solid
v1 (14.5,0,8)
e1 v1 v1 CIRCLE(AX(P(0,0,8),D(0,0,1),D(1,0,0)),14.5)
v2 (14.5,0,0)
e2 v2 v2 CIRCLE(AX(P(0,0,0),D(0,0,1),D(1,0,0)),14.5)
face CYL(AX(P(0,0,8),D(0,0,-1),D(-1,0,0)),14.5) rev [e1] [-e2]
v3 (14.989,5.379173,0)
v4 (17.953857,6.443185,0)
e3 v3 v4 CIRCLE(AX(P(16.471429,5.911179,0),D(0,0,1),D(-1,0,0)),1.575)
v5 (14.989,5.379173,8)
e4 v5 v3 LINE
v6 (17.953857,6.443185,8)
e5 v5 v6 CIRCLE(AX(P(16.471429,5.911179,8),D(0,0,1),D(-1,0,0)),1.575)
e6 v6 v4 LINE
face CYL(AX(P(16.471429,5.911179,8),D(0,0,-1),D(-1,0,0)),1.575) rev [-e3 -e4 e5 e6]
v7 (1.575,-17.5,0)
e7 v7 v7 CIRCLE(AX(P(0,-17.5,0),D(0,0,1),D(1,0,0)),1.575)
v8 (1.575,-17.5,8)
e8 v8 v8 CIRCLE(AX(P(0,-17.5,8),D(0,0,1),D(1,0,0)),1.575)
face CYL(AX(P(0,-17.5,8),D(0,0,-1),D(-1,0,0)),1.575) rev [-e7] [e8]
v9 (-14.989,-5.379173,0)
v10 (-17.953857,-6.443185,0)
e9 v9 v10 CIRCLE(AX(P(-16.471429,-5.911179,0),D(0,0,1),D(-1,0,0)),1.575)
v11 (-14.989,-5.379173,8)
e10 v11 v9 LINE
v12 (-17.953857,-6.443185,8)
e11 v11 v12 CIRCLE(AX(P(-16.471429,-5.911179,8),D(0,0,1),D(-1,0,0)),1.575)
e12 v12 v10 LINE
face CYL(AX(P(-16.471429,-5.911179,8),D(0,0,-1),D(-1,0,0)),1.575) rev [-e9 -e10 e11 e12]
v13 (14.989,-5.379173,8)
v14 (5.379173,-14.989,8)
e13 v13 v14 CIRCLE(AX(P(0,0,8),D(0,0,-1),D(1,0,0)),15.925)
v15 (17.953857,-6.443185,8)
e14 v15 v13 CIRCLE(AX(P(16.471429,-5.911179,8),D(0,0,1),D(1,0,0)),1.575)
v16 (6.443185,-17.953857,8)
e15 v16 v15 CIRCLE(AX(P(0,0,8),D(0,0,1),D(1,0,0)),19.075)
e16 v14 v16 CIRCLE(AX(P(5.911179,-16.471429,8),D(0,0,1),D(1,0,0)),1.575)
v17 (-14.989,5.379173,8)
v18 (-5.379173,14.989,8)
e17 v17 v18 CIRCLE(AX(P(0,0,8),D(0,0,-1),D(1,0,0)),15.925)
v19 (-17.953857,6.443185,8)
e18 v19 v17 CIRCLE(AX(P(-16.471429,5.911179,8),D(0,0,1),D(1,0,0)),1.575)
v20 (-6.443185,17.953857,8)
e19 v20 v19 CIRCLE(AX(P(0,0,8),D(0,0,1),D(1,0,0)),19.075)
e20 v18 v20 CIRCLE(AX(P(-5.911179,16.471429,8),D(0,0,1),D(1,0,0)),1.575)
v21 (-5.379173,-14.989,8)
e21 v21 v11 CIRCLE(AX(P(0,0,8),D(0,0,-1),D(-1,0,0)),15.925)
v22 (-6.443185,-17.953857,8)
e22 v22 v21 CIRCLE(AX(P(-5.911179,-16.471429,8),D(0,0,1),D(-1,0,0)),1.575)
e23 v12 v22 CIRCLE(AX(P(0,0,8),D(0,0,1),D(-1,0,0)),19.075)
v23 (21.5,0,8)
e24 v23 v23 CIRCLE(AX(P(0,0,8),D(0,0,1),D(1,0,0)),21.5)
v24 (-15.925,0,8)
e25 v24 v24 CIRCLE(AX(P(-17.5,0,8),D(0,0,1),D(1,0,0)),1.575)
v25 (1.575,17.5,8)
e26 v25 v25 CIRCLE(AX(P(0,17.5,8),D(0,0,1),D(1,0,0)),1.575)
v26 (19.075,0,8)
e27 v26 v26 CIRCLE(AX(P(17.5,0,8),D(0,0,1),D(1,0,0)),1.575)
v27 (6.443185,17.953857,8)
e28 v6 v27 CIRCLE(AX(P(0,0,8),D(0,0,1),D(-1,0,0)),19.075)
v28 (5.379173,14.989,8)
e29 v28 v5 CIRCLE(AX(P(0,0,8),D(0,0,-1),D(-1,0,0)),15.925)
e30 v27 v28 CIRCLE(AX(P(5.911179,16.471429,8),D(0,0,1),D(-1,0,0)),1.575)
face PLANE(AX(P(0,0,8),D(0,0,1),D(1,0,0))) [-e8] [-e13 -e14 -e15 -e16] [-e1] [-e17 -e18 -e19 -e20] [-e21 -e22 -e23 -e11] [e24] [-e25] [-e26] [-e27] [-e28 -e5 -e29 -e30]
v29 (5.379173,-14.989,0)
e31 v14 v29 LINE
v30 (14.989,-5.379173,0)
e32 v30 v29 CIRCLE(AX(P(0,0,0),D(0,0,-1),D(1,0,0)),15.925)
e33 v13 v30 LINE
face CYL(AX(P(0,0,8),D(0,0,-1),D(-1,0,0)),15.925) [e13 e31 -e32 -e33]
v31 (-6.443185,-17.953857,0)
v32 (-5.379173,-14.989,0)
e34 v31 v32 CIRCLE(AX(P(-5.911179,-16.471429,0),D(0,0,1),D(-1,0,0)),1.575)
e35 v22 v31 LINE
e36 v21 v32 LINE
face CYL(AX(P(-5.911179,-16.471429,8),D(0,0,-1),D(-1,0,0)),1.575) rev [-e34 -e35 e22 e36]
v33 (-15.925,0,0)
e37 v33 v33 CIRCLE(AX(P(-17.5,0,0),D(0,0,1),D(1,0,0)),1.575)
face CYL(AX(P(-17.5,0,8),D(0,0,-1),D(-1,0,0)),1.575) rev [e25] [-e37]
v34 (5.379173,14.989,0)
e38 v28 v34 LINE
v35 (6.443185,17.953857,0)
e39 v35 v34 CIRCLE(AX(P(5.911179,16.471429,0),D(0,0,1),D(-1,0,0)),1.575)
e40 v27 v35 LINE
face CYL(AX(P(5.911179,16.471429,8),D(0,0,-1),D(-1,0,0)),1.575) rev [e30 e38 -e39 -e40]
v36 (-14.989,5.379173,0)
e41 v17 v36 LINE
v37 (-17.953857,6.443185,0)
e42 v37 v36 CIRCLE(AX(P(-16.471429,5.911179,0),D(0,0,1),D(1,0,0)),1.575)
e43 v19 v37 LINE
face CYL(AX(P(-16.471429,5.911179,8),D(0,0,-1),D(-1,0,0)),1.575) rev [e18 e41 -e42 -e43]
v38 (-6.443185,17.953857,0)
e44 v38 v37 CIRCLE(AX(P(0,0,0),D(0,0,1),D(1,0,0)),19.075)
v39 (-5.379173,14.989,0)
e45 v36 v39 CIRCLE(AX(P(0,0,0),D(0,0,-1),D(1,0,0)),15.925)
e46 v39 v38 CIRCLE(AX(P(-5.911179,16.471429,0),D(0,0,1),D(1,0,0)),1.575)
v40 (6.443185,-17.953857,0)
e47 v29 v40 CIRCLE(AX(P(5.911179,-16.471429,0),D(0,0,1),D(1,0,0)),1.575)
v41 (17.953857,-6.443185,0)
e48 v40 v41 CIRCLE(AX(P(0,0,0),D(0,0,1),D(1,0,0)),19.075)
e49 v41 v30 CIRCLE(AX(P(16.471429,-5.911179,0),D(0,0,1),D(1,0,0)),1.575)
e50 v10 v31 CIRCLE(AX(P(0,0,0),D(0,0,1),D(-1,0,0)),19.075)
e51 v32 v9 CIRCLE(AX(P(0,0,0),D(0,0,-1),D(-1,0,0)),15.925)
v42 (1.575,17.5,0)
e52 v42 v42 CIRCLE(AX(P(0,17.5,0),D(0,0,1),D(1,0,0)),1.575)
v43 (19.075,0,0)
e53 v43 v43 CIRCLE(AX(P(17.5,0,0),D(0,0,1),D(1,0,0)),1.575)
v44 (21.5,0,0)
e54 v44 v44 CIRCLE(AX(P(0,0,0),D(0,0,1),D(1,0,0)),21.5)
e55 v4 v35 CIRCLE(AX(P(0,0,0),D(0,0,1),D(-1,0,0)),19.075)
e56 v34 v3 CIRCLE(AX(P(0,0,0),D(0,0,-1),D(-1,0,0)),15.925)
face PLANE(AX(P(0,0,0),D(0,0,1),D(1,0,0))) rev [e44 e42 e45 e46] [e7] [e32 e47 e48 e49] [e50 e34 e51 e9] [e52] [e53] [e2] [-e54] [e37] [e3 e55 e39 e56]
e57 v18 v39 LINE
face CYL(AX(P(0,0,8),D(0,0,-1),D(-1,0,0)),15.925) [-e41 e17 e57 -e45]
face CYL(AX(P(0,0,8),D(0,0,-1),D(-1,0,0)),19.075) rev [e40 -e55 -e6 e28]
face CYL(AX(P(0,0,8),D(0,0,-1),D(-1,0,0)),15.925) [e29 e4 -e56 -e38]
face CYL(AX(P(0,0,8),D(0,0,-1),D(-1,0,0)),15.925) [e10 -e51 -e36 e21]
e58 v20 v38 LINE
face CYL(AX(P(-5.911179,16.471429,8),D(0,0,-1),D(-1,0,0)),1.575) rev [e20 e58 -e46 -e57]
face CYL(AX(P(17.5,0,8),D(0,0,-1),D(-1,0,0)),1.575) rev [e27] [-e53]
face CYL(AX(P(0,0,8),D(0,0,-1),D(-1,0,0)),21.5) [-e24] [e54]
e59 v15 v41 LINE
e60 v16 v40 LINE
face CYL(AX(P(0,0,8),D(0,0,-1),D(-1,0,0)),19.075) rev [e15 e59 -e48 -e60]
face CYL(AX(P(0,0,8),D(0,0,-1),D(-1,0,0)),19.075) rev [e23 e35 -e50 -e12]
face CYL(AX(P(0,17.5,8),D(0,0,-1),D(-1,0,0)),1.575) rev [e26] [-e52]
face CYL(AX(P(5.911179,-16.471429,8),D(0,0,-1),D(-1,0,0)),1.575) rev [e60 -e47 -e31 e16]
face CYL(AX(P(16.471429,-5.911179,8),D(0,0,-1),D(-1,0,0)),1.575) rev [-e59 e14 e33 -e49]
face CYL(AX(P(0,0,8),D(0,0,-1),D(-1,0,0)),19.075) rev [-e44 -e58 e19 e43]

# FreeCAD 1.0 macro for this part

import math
import FreeCAD as App
import Part
import Sketcher

doc = App.newDocument("Part")
body = doc.addObject("PartDesign::Body", "Body")

# Sketch on XY plane
sketch1 = body.newObject("Sketcher::SketchObject", "Sketch")
sketch1.AttachmentSupport = (doc.getObject("XY_Plane"), [""])
sketch1.MapMode = "FlatFace"
sketch1.addGeometry(Part.Circle(App.Vector(0, 0, 0), App.Vector(0, 0, 1), 21.5), False)
sketch1.addGeometry(Part.ArcOfCircle(Part.Circle(App.Vector(0, 0, 0), App.Vector(0, 0, 1), 15.9), math.radians(-160), math.radians(-110)), False)
sketch1.addGeometry(Part.ArcOfCircle(Part.Circle(App.Vector(-5.9, -16.5, 0), App.Vector(0, 0, 1), 1.6), math.radians(-110), math.radians(70)), False)
sketch1.addGeometry(Part.ArcOfCircle(Part.Circle(App.Vector(0, 0, 0), App.Vector(0, 0, 1), 19.1), math.radians(-160), math.radians(-110)), False)
sketch1.addGeometry(Part.ArcOfCircle(Part.Circle(App.Vector(-16.5, -5.9, 0), App.Vector(0, 0, 1), 1.6), math.radians(20), math.radians(200)), False)
sketch1.addGeometry(Part.Circle(App.Vector(0, -17.5, 0), App.Vector(0, 0, 1), 1.6), False)
sketch1.addGeometry(Part.ArcOfCircle(Part.Circle(App.Vector(5.9, -16.5, 0), App.Vector(0, 0, 1), 1.6), math.radians(110), math.radians(290)), False)
sketch1.addGeometry(Part.ArcOfCircle(Part.Circle(App.Vector(0, 0, 0), App.Vector(0, 0, 1), 15.9), math.radians(-70), math.radians(-20)), False)
sketch1.addGeometry(Part.ArcOfCircle(Part.Circle(App.Vector(16.5, -5.9, 0), App.Vector(0, 0, 1), 1.6), math.radians(-20), math.radians(160)), False)
sketch1.addGeometry(Part.ArcOfCircle(Part.Circle(App.Vector(0, 0, 0), App.Vector(0, 0, 1), 19.1), math.radians(-70), math.radians(-20)), False)
sketch1.addGeometry(Part.Circle(App.Vector(0, 0, 0), App.Vector(0, 0, 1), 14.5), False)
sketch1.addGeometry(Part.Circle(App.Vector(-17.5, 0, 0), App.Vector(0, 0, 1), 1.6), False)
sketch1.addGeometry(Part.ArcOfCircle(Part.Circle(App.Vector(-5.9, 16.5, 0), App.Vector(0, 0, 1), 1.6), math.radians(-70), math.radians(110)), False)
sketch1.addGeometry(Part.ArcOfCircle(Part.Circle(App.Vector(0, 0, 0), App.Vector(0, 0, 1), 15.9), math.radians(110), math.radians(160)), False)
sketch1.addGeometry(Part.ArcOfCircle(Part.Circle(App.Vector(-16.5, 5.9, 0), App.Vector(0, 0, 1), 1.6), math.radians(160), math.radians(340)), False)
sketch1.addGeometry(Part.ArcOfCircle(Part.Circle(App.Vector(0, 0, 0), App.Vector(0, 0, 1), 19.1), math.radians(110), math.radians(160)), False)
sketch1.addGeometry(Part.Circle(App.Vector(17.5, 0, 0), App.Vector(0, 0, 1), 1.6), False)
sketch1.addGeometry(Part.Circle(App.Vector(0, 17.5, 0), App.Vector(0, 0, 1), 1.6), False)
sketch1.addGeometry(Part.ArcOfCircle(Part.Circle(App.Vector(0, 0, 0), App.Vector(0, 0, 1), 15.9), math.radians(20), math.radians(70)), False)
sketch1.addGeometry(Part.ArcOfCircle(Part.Circle(App.Vector(5.9, 16.5, 0), App.Vector(0, 0, 1), 1.6), math.radians(70), math.radians(250)), False)
sketch1.addGeometry(Part.ArcOfCircle(Part.Circle(App.Vector(0, 0, 0), App.Vector(0, 0, 1), 19.1), math.radians(20), math.radians(70)), False)
sketch1.addGeometry(Part.ArcOfCircle(Part.Circle(App.Vector(16.5, 5.9, 0), App.Vector(0, 0, 1), 1.6), math.radians(-160), math.radians(20)), False)
sketch1.addConstraint(Sketcher.Constraint("Tangent", 1, 2, 2, 2))
sketch1.addConstraint(Sketcher.Constraint("Tangent", 2, 1, 3, 2))
sketch1.addConstraint(Sketcher.Constraint("Tangent", 3, 1, 4, 2))
sketch1.addConstraint(Sketcher.Constraint("Tangent", 4, 1, 1, 1))
sketch1.addConstraint(Sketcher.Constraint("Tangent", 6, 1, 7, 1))
sketch1.addConstraint(Sketcher.Constraint("Tangent", 7, 2, 8, 2))
sketch1.addConstraint(Sketcher.Constraint("Tangent", 8, 1, 9, 2))
sketch1.addConstraint(Sketcher.Constraint("Tangent", 9, 1, 6, 2))
sketch1.addConstraint(Sketcher.Constraint("Tangent", 12, 1, 13, 1))
sketch1.addConstraint(Sketcher.Constraint("Tangent", 13, 2, 14, 2))
sketch1.addConstraint(Sketcher.Constraint("Tangent", 14, 1, 15, 2))
sketch1.addConstraint(Sketcher.Constraint("Tangent", 15, 1, 12, 2))
sketch1.addConstraint(Sketcher.Constraint("Tangent", 18, 2, 19, 2))
sketch1.addConstraint(Sketcher.Constraint("Tangent", 19, 1, 20, 2))
sketch1.addConstraint(Sketcher.Constraint("Tangent", 20, 1, 21, 2))
sketch1.addConstraint(Sketcher.Constraint("Tangent", 21, 1, 18, 1))
sketch1.addConstraint(Sketcher.Constraint("Coincident", 0, 3, -1, 1))
sketch1.addConstraint(Sketcher.Constraint("Coincident", 1, 3, -1, 1))
sketch1.addConstraint(Sketcher.Constraint("Coincident", 3, 3, -1, 1))
sketch1.addConstraint(Sketcher.Constraint("Coincident", 7, 3, -1, 1))
sketch1.addConstraint(Sketcher.Constraint("Coincident", 9, 3, -1, 1))
sketch1.addConstraint(Sketcher.Constraint("Coincident", 10, 3, -1, 1))
sketch1.addConstraint(Sketcher.Constraint("Coincident", 13, 3, -1, 1))
sketch1.addConstraint(Sketcher.Constraint("Coincident", 15, 3, -1, 1))
sketch1.addConstraint(Sketcher.Constraint("Coincident", 18, 3, -1, 1))
sketch1.addConstraint(Sketcher.Constraint("Coincident", 20, 3, -1, 1))
sketch1.addConstraint(Sketcher.Constraint("Equal", 4, 5))
sketch1.addConstraint(Sketcher.Constraint("Equal", 5, 6))
sketch1.addConstraint(Sketcher.Constraint("Equal", 1, 7))
sketch1.addConstraint(Sketcher.Constraint("Equal", 8, 11))
sketch1.addConstraint(Sketcher.Constraint("Equal", 11, 12))
sketch1.addConstraint(Sketcher.Constraint("Equal", 7, 13))
sketch1.addConstraint(Sketcher.Constraint("Equal", 14, 16))
sketch1.addConstraint(Sketcher.Constraint("Equal", 16, 17))
sketch1.addConstraint(Sketcher.Constraint("Equal", 13, 18))
sketch1.addConstraint(Sketcher.Constraint("Equal", 17, 19))
sketch1.addConstraint(Sketcher.Constraint("Symmetric", 11, 3, 16, 3, -1, 1))
sketch1.addConstraint(Sketcher.Constraint("Symmetric", 5, 3, 17, 3, -1, 1))
sketch1.addConstraint(Sketcher.Constraint("PointOnObject", 5, 3, -2))
sketch1.addConstraint(Sketcher.Constraint("PointOnObject", 11, 3, -1))
sketch1.addConstraint(Sketcher.Constraint("Horizontal", 2, 3, 6, 3))
sketch1.addConstraint(Sketcher.Constraint("Horizontal", 4, 3, 8, 3))
sketch1.addConstraint(Sketcher.Constraint("Horizontal", 12, 3, 19, 3))
sketch1.addConstraint(Sketcher.Constraint("Horizontal", 14, 3, 21, 3))
sketch1.addConstraint(Sketcher.Constraint("Vertical", 2, 3, 12, 3))
sketch1.addConstraint(Sketcher.Constraint("Vertical", 4, 3, 14, 3))
sketch1.addConstraint(Sketcher.Constraint("Diameter", 0, 43.0))
sketch1.addConstraint(Sketcher.Constraint("Diameter", 10, 29.0))
sketch1.addConstraint(Sketcher.Constraint("Diameter", 5, 3.15))
sketch1.addConstraint(Sketcher.Constraint("Radius", 1, 15.925))
sketch1.addConstraint(Sketcher.Constraint("DistanceY", 5, 3, -1, 1, 17.5))
sketch1.addConstraint(Sketcher.Constraint("DistanceX", 11, 3, -1, 1, 17.5))
sketch1.addConstraint(Sketcher.Constraint("DistanceY", 1, 2, -1, 1, 14.989))
sketch1.addConstraint(Sketcher.Constraint("DistanceX", 4, 1, -1, 1, 14.989))
pad1 = body.newObject("PartDesign::Pad", "Pad")
pad1.Profile = sketch1
pad1.Length = 8

doc.recompute()
